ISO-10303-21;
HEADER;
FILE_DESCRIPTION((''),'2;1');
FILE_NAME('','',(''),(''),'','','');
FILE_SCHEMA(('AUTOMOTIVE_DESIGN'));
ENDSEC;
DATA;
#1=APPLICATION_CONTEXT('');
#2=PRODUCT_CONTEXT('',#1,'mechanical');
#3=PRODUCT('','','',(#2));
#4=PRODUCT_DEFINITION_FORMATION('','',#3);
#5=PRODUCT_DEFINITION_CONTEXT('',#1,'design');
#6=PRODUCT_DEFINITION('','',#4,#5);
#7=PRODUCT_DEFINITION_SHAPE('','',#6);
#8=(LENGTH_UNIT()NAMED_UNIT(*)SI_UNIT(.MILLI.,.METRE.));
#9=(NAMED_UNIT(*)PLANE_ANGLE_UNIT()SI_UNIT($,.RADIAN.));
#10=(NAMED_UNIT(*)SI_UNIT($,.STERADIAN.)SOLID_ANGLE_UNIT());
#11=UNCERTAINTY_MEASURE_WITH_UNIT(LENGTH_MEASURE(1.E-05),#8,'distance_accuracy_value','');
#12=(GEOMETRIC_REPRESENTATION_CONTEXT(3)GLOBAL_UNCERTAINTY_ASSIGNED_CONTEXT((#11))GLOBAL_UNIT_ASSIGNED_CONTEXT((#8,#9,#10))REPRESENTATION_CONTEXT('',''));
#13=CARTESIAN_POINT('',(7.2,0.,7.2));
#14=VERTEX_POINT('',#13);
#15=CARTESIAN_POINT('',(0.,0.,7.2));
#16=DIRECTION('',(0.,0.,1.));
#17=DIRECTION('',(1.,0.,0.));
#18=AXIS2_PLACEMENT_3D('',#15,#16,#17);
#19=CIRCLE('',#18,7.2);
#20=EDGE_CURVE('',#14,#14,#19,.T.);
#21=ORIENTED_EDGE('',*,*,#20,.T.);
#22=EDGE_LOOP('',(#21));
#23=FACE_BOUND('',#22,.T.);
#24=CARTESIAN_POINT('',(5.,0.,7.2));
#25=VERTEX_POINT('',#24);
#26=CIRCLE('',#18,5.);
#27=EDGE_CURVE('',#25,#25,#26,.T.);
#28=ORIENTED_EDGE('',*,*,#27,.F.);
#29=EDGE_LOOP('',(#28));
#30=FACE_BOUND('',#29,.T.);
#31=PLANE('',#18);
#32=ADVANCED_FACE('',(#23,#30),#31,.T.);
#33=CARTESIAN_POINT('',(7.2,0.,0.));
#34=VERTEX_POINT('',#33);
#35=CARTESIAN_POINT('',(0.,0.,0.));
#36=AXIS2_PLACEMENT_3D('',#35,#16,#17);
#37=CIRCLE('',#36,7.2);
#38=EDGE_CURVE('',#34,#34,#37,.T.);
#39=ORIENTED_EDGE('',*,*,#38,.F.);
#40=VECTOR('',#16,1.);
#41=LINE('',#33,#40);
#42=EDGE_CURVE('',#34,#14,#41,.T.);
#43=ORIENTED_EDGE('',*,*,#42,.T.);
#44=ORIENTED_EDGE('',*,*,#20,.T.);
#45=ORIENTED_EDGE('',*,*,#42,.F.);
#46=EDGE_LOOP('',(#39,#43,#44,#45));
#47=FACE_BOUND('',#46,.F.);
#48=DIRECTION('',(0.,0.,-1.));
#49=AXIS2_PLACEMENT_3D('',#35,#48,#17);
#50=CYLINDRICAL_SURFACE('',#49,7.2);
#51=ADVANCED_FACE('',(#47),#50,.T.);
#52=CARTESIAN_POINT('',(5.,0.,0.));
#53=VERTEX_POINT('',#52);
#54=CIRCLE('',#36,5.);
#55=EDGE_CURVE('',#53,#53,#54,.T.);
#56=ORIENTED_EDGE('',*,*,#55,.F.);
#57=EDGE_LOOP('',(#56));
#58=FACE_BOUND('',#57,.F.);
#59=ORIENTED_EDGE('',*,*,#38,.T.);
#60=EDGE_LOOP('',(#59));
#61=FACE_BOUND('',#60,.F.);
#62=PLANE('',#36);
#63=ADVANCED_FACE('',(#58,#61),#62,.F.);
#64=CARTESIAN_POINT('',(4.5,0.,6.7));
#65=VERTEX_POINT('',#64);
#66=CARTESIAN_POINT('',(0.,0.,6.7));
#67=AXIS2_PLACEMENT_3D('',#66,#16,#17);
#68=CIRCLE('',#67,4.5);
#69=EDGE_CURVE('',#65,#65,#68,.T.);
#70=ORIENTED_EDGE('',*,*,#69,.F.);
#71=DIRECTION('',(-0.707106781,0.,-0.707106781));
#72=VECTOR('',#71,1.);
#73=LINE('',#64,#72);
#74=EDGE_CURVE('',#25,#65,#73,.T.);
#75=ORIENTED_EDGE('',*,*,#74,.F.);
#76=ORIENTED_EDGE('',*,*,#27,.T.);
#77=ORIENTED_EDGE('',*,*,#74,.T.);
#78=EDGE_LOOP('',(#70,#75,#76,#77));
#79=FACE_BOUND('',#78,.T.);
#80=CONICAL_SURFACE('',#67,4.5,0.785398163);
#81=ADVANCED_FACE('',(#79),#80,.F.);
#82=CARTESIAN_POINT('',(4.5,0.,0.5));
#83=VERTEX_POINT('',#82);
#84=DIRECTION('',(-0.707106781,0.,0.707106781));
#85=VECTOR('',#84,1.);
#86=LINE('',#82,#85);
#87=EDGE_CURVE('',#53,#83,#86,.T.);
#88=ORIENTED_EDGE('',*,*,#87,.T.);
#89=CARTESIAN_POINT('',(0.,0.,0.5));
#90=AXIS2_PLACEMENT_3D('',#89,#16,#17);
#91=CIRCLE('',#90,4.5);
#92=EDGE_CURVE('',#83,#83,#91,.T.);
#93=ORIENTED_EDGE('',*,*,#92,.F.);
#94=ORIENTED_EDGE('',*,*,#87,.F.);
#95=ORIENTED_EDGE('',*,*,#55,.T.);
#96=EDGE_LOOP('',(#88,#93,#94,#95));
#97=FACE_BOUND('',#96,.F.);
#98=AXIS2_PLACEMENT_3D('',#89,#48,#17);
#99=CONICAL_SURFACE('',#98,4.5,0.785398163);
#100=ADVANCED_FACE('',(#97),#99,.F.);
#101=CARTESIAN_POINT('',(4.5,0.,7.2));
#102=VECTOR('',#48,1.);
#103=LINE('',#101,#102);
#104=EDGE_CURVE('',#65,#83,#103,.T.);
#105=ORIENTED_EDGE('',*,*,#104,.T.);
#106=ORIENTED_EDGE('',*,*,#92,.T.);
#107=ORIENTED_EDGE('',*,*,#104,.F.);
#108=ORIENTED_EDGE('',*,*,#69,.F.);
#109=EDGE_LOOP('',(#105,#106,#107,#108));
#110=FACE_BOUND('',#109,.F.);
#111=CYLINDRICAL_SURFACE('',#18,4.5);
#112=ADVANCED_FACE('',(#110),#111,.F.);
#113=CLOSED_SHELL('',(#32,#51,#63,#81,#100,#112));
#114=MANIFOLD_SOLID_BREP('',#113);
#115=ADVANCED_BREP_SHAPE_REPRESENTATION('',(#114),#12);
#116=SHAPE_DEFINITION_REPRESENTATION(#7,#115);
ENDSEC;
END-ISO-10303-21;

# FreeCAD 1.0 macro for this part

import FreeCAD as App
import Part
import Sketcher

V = App.Vector


def edges_at(feature, points):
    """Names of the edges that pass closest to the given points."""
    edges = feature.Shape.Edges
    near = lambda p: min(range(len(edges)), key=lambda i: edges[i].distToShape(Part.Vertex(*p))[0])
    return sorted({f"Edge{near(p) + 1}" for p in points})

doc = App.newDocument("Part")
body = doc.addObject("PartDesign::Body", "Body")

sketch1 = doc.addObject("Sketcher::SketchObject", "Sketch")
body.addObject(sketch1)
sketch1.AttachmentSupport = (doc.XY_Plane, [""])
sketch1.MapMode = "FlatFace"
sketch1.addGeometry(Part.Circle(V(0, 0, 0), V(0, 0, 1), 7), False)
sketch1.addConstraint(Sketcher.Constraint("Coincident", 0, 3, -1, 1))
sketch1.addConstraint(Sketcher.Constraint("Diameter", 0, 14.4))
pad1 = doc.addObject("PartDesign::Pad", "Pad")
body.addObject(pad1)
pad1.Profile = sketch1
pad1.Length = 7.2

sketch2 = doc.addObject("Sketcher::SketchObject", "Sketch001")
body.addObject(sketch2)
sketch2.AttachmentSupport = (doc.XY_Plane, [""])
sketch2.MapMode = "FlatFace"
sketch2.AttachmentOffset = App.Placement(V(0, 0, 7.2), App.Rotation())
sketch2.addGeometry(Part.Circle(V(0, 0, 0), V(0, 0, 1), 4.5), False)
sketch2.addConstraint(Sketcher.Constraint("Coincident", 0, 3, -1, 1))
sketch2.addConstraint(Sketcher.Constraint("Diameter", 0, 9.0))
pocket1 = doc.addObject("PartDesign::Pocket", "Pocket")
body.addObject(pocket1)
pocket1.Profile = sketch2
pocket1.Type = "ThroughAll"
doc.recompute()

chamfer = doc.addObject("PartDesign::Chamfer", "Chamfer")
body.addObject(chamfer)
chamfer.Base = (pocket1, edges_at(pocket1, [(-4.5, 0, 7.2), (-4.5, 0, 0)]))
chamfer.Size = 0.5

doc.recompute()
